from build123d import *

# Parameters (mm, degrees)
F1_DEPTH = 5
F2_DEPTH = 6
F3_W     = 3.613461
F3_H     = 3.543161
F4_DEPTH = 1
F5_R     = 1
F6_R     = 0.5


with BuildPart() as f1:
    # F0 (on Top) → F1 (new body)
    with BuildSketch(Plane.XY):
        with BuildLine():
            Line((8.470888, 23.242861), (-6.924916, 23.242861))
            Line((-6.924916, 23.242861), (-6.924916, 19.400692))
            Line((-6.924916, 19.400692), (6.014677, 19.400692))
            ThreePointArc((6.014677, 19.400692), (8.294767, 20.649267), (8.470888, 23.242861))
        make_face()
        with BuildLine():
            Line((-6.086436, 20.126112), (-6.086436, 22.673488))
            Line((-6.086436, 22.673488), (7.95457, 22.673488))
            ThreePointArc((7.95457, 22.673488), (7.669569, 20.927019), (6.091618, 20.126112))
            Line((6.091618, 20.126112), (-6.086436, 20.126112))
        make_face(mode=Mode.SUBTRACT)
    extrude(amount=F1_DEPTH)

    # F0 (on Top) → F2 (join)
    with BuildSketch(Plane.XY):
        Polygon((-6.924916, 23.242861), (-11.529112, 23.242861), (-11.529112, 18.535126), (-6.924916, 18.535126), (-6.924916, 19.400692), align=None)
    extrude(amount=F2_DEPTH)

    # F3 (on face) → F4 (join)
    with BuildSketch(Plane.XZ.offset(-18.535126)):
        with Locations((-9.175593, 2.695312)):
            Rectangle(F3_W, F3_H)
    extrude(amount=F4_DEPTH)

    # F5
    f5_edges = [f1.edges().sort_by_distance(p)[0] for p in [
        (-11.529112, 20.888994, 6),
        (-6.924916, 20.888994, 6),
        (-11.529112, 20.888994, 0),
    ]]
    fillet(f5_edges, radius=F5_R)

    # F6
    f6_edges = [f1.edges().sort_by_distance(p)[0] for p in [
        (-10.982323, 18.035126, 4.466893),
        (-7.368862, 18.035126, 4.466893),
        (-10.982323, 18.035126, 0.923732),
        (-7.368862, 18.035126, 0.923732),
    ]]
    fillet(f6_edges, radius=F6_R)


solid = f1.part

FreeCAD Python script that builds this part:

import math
import FreeCAD as App
import Part
import Sketcher
Q = App.Units.Quantity


def edges_at(feature, points):
    """Names of the edges that pass closest to the given points."""
    edges = feature.Shape.Edges
    near = lambda p: min(range(len(edges)), key=lambda i: edges[i].distToShape(Part.Vertex(*p))[0])
    return sorted({f"Edge{near(p) + 1}" for p in points})

doc = App.newDocument("Part")
body = doc.addObject("PartDesign::Body", "Body")

sketch1 = body.newObject("Sketcher::SketchObject", "Sketch")
sketch1.AttachmentSupport = (doc.getObject("XY_Plane"), [""])
sketch1.MapMode = "FlatFace"
sketch1.addGeometry(Part.LineSegment(App.Vector(8.470888, 23.242861, 0), App.Vector(-6.924916, 23.242861, 0)), False)
sketch1.addGeometry(Part.LineSegment(App.Vector(-6.924916, 23.242861, 0), App.Vector(-6.924916, 19.400692, 0)), False)
sketch1.addGeometry(Part.LineSegment(App.Vector(-6.924916, 19.400692, 0), App.Vector(6.014677, 19.400692, 0)), False)
sketch1.addGeometry(Part.ArcOfCircle(Part.Circle(App.Vector(6.014678, 22.106876, 0), App.Vector(0, 0, 1), 2.706184), math.radians(-90.000012), math.radians(24.820305)), False)
sketch1.addGeometry(Part.LineSegment(App.Vector(6.091618, 20.126112, 0), App.Vector(-6.086436, 20.126112, 0)), False)
sketch1.addGeometry(Part.LineSegment(App.Vector(-6.086436, 20.126112, 0), App.Vector(-6.086436, 22.673488, 0)), False)
sketch1.addGeometry(Part.LineSegment(App.Vector(-6.086436, 22.673488, 0), App.Vector(7.95457, 22.673488, 0)), False)
sketch1.addGeometry(Part.ArcOfCircle(Part.Circle(App.Vector(6.091618, 22.081009, 0), App.Vector(0, 0, 1), 1.954897), math.radians(-90.000003), math.radians(17.642355)), False)
sketch1.addConstraint(Sketcher.Constraint("Coincident", 0, 2, 1, 1))
sketch1.addConstraint(Sketcher.Constraint("Coincident", 1, 2, 2, 1))
sketch1.addConstraint(Sketcher.Constraint("Tangent", 2, 2, 3, 1))
sketch1.addConstraint(Sketcher.Constraint("Coincident", 3, 2, 0, 1))
sketch1.addConstraint(Sketcher.Constraint("Coincident", 4, 2, 5, 1))
sketch1.addConstraint(Sketcher.Constraint("Coincident", 5, 2, 6, 1))
sketch1.addConstraint(Sketcher.Constraint("Coincident", 6, 2, 7, 2))
sketch1.addConstraint(Sketcher.Constraint("Tangent", 7, 1, 4, 1))
sketch1.addConstraint(Sketcher.Constraint("Horizontal", 0))
sketch1.addConstraint(Sketcher.Constraint("Vertical", 1))
sketch1.addConstraint(Sketcher.Constraint("Horizontal", 2))
sketch1.addConstraint(Sketcher.Constraint("Horizontal", 4))
sketch1.addConstraint(Sketcher.Constraint("Vertical", 5))
sketch1.addConstraint(Sketcher.Constraint("Horizontal", 6))
sketch1.addConstraint(Sketcher.Constraint("Radius", 3, Q("2.706184 mm")))
sketch1.addConstraint(Sketcher.Constraint("Radius", 7, Q("1.954897 mm")))
sketch1.addConstraint(Sketcher.Constraint("DistanceY", 1, 2, 1, 1, Q("3.842169 mm")))
sketch1.addConstraint(Sketcher.Constraint("DistanceX", 0, 2, 0, 1, Q("15.395804 mm")))
sketch1.addConstraint(Sketcher.Constraint("DistanceX", 4, 2, 4, 1, Q("12.178054 mm")))
sketch1.addConstraint(Sketcher.Constraint("DistanceX", 6, 1, 6, 2, Q("14.041006 mm")))
sketch1.addConstraint(Sketcher.Constraint("DistanceX", -1, 1, 7, 3, Q("6.091618 mm")))
sketch1.addConstraint(Sketcher.Constraint("DistanceY", -1, 1, 7, 3, Q("22.081009 mm")))
sketch1.addConstraint(Sketcher.Constraint("DistanceY", -1, 1, 0, 2, Q("23.242861 mm")))
sketch1.addConstraint(Sketcher.Constraint("DistanceX", -1, 1, 3, 2, Q("8.470888 mm")))
pad1 = body.newObject("PartDesign::Pad", "Pad")
pad1.Profile = sketch1
pad1.Length = 5

sketch2 = body.newObject("Sketcher::SketchObject", "Sketch001")
sketch2.AttachmentSupport = (doc.getObject("XY_Plane"), [""])
sketch2.MapMode = "FlatFace"
sketch2.addGeometry(Part.LineSegment(App.Vector(-6.924916, 23.242861, 0), App.Vector(-11.529112, 23.242861, 0)), False)
sketch2.addGeometry(Part.LineSegment(App.Vector(-11.529112, 23.242861, 0), App.Vector(-11.529112, 18.535126, 0)), False)
sketch2.addGeometry(Part.LineSegment(App.Vector(-11.529112, 18.535126, 0), App.Vector(-6.924916, 18.535126, 0)), False)
sketch2.addGeometry(Part.LineSegment(App.Vector(-6.924916, 18.535126, 0), App.Vector(-6.924916, 23.242861, 0)), False)
sketch2.addConstraint(Sketcher.Constraint("Coincident", 0, 2, 1, 1))
sketch2.addConstraint(Sketcher.Constraint("Coincident", 1, 2, 2, 1))
sketch2.addConstraint(Sketcher.Constraint("Coincident", 2, 2, 3, 1))
sketch2.addConstraint(Sketcher.Constraint("Coincident", 3, 2, 0, 1))
sketch2.addConstraint(Sketcher.Constraint("Horizontal", 0))
sketch2.addConstraint(Sketcher.Constraint("Vertical", 1))
sketch2.addConstraint(Sketcher.Constraint("Horizontal", 2))
sketch2.addConstraint(Sketcher.Constraint("Vertical", 3))
sketch2.addConstraint(Sketcher.Constraint("DistanceX", 0, 2, 0, 1, Q("4.604196 mm")))
sketch2.addConstraint(Sketcher.Constraint("DistanceY", 1, 2, 1, 1, Q("4.707735 mm")))
sketch2.addConstraint(Sketcher.Constraint("DistanceY", -1, 1, 0, 2, Q("23.242861 mm")))
sketch2.addConstraint(Sketcher.Constraint("DistanceX", 0, 2, -1, 1, Q("11.529112 mm")))
pad2 = body.newObject("PartDesign::Pad", "Pad001")
pad2.Profile = sketch2
pad2.Length = 6

sketch3 = body.newObject("Sketcher::SketchObject", "Sketch002")
sketch3.AttachmentSupport = (doc.getObject("XZ_Plane"), [""])
sketch3.MapMode = "FlatFace"
sketch3.AttachmentOffset = App.Placement(App.Vector(0, 0, -18.535126), App.Rotation())
sketch3.addGeometry(Part.LineSegment(App.Vector(-10.982323, 4.466893, 0), App.Vector(-10.982323, 0.923732, 0)), False)
sketch3.addGeometry(Part.LineSegment(App.Vector(-10.982323, 0.923732, 0), App.Vector(-7.368862, 0.923732, 0)), False)
sketch3.addGeometry(Part.LineSegment(App.Vector(-7.368862, 0.923732, 0), App.Vector(-7.368862, 4.466893, 0)), False)
sketch3.addGeometry(Part.LineSegment(App.Vector(-7.368862, 4.466893, 0), App.Vector(-10.982323, 4.466893, 0)), False)
sketch3.addConstraint(Sketcher.Constraint("Coincident", 0, 2, 1, 1))
sketch3.addConstraint(Sketcher.Constraint("Coincident", 1, 2, 2, 1))
sketch3.addConstraint(Sketcher.Constraint("Coincident", 2, 2, 3, 1))
sketch3.addConstraint(Sketcher.Constraint("Coincident", 3, 2, 0, 1))
sketch3.addConstraint(Sketcher.Constraint("Vertical", 0))
sketch3.addConstraint(Sketcher.Constraint("Horizontal", 1))
sketch3.addConstraint(Sketcher.Constraint("Vertical", 2))
sketch3.addConstraint(Sketcher.Constraint("Horizontal", 3))
sketch3.addConstraint(Sketcher.Constraint("DistanceX", 1, 1, 1, 2, Q("3.613461 mm")))
sketch3.addConstraint(Sketcher.Constraint("DistanceY", 0, 2, 0, 1, Q("3.543161 mm")))
sketch3.addConstraint(Sketcher.Constraint("DistanceY", -1, 1, 0, 2, Q("0.923732 mm")))
sketch3.addConstraint(Sketcher.Constraint("DistanceX", 0, 2, -1, 1, Q("10.982323 mm")))
pad3 = body.newObject("PartDesign::Pad", "Pad002")
pad3.Profile = sketch3
pad3.Length = 1
doc.recompute()

fillet = body.newObject("PartDesign::Fillet", "Fillet")
fillet.Base = (pad3, edges_at(pad3, [(-11.529, 20.889, 6), (-6.925, 20.889, 6), (-11.529, 20.889, 0)]))
fillet.Radius = 1
doc.recompute()

fillet2 = body.newObject("PartDesign::Fillet", "Fillet001")
fillet2.Base = (fillet, edges_at(fillet, [
    (-10.982, 18.035, 4.467),
    (-7.369, 18.035, 4.467),
    (-10.982, 18.035, 0.924),
    (-7.369, 18.035, 0.924),
]))
fillet2.Radius = 0.5

doc.recompute()
